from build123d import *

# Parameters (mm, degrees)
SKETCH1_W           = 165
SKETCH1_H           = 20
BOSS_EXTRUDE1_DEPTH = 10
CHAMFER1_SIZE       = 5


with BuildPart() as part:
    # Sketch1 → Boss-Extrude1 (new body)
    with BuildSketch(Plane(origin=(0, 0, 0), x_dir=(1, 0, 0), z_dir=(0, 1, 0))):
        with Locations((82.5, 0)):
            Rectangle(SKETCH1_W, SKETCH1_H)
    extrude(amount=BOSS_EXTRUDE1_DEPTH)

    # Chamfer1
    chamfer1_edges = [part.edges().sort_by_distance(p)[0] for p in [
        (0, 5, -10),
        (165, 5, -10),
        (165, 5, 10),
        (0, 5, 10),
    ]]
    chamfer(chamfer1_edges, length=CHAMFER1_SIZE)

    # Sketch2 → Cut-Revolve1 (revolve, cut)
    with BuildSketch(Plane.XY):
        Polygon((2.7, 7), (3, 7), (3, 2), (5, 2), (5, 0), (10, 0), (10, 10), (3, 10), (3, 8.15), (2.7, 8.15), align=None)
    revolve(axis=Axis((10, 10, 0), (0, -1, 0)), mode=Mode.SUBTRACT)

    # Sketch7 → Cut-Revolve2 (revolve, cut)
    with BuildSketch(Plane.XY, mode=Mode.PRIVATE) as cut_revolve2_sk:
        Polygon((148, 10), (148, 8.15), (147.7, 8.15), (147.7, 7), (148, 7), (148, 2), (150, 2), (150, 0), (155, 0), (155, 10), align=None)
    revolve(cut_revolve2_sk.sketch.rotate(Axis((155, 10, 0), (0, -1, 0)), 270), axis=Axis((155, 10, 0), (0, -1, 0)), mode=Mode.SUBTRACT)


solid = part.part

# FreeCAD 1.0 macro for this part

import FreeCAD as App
import Part
import Sketcher
from FreeCAD import Vector
Q = App.Units.Quantity


def edges_at(feature, points):
    """Names of the edges that pass closest to the given points."""
    edges = feature.Shape.Edges
    near = lambda p: min(range(len(edges)), key=lambda i: edges[i].distToShape(Part.Vertex(*p))[0])
    return sorted({f"Edge{near(p) + 1}" for p in points})


def add_polygon(sketch, points):
    """Adds a closed chain of lines whose ends are joined by coincident constraints."""
    first, n = sketch.GeometryCount, len(points)
    for a, b in zip(points, points[1:] + points[:1]):
        sketch.addGeometry(Part.LineSegment(App.Vector(*a, 0), App.Vector(*b, 0)), False)
    for i in range(n):
        sketch.addConstraint(Sketcher.Constraint("Coincident", first + i, 2, first + (i + 1) % n, 1))

doc = App.newDocument("Part")
body = doc.addObject("PartDesign::Body", "Body")

# Sketch on XZ plane
sketch1 = body.newObject("Sketcher::SketchObject", "Sketch")
sketch1.AttachmentSupport = (doc.getObject("XZ_Plane"), [""])
sketch1.MapMode = "FlatFace"
add_polygon(sketch1, [(0, -10), (0, 10), (165, 10), (165, -10)])  # lines 0-3
sketch1.addConstraint(Sketcher.Constraint("Vertical", 0))
sketch1.addConstraint(Sketcher.Constraint("Horizontal", 1))
sketch1.addConstraint(Sketcher.Constraint("Vertical", 2))
sketch1.addConstraint(Sketcher.Constraint("Horizontal", 3))
sketch1.addConstraint(Sketcher.Constraint("Symmetric", 0, 2, 3, 2, -1, 1))
sketch1.addConstraint(Sketcher.Constraint("DistanceX", 1, 1, 1, 2, Q("165 mm")))
sketch1.addConstraint(Sketcher.Constraint("DistanceY", 0, 1, 0, 2, Q("20 mm")))
pad1 = body.newObject("PartDesign::Pad", "Pad")
pad1.Profile = sketch1
pad1.Length = 10
pad1.Reversed = True
doc.recompute()

chamfer = body.newObject("PartDesign::Chamfer", "Chamfer")
chamfer.Base = (pad1, edges_at(pad1, [
    (0, 5, -10),
    (165, 5, -10),
    (165, 5, 10),
    (0, 5, 10),
]))
chamfer.Size = 5

# Sketch on XY plane
sketch2 = body.newObject("Sketcher::SketchObject", "Sketch001")
sketch2.AttachmentSupport = (doc.getObject("XY_Plane"), [""])
sketch2.MapMode = "FlatFace"
add_polygon(sketch2, [(2.7, 7), (3, 7), (3, 2), (5, 2), (5, 0), (10, 0), (10, 10), (3, 10), (3, 8.15), (2.7, 8.15)])  # lines 0-9
sketch2.addGeometry(Part.LineSegment(Vector(10, 10, 0), Vector(10, 0, 0)), True)  # axis
sketch2.addConstraint(Sketcher.Constraint("Horizontal", 0))
sketch2.addConstraint(Sketcher.Constraint("Vertical", 1))
sketch2.addConstraint(Sketcher.Constraint("Horizontal", 2))
sketch2.addConstraint(Sketcher.Constraint("Vertical", 3))
sketch2.addConstraint(Sketcher.Constraint("Horizontal", 4))
sketch2.addConstraint(Sketcher.Constraint("Vertical", 5))
sketch2.addConstraint(Sketcher.Constraint("Horizontal", 6))
sketch2.addConstraint(Sketcher.Constraint("Vertical", 7))
sketch2.addConstraint(Sketcher.Constraint("Horizontal", 8))
sketch2.addConstraint(Sketcher.Constraint("Vertical", 9))
sketch2.addConstraint(Sketcher.Constraint("Vertical", 10))
sketch2.addConstraint(Sketcher.Constraint("Coincident", 10, 1, 5, 2))
sketch2.addConstraint(Sketcher.Constraint("PointOnObject", 3, 2, -1))
sketch2.addConstraint(Sketcher.Constraint("PointOnObject", 10, 2, -1))
sketch2.addConstraint(Sketcher.Constraint("Vertical", 1, 2, 6, 2))
sketch2.addConstraint(Sketcher.Constraint("Equal", 4, 1))
sketch2.addConstraint(Sketcher.Constraint("Equal", 2, 3))
sketch2.addConstraint(Sketcher.Constraint("DistanceX", 2, 1, 2, 2, Q("2 mm")))
sketch2.addConstraint(Sketcher.Constraint("DistanceX", 4, 1, 4, 2, Q("5 mm")))
sketch2.addConstraint(Sketcher.Constraint("DistanceY", 5, 1, 5, 2, Q("10 mm")))
sketch2.addConstraint(Sketcher.Constraint("DistanceX", 0, 1, 0, 2, Q("0.3 mm")))
sketch2.addConstraint(Sketcher.Constraint("DistanceX", -1, 1, 0, 2, Q("3 mm")))
sketch2.addConstraint(Sketcher.Constraint("DistanceY", 7, 2, 7, 1, Q("1.85 mm")))
groove = body.newObject("PartDesign::Groove", "Groove")
groove.Profile = sketch2
groove.ReferenceAxis = (sketch2, ["Axis0"])
groove.Angle = 360

# Sketch on XY plane
sketch3 = body.newObject("Sketcher::SketchObject", "Sketch002")
sketch3.AttachmentSupport = (doc.getObject("XY_Plane"), [""])
sketch3.MapMode = "FlatFace"
add_polygon(sketch3, [(148, 10), (148, 8.15), (147.7, 8.15), (147.7, 7), (148, 7), (148, 2), (150, 2), (150, 0), (155, 0), (155, 10)])  # lines 0-9
sketch3.addGeometry(Part.LineSegment(Vector(155, 10, 0), Vector(155, 0, 0)), True)  # axis
sketch3.addConstraint(Sketcher.Constraint("Vertical", 0))
sketch3.addConstraint(Sketcher.Constraint("Horizontal", 1))
sketch3.addConstraint(Sketcher.Constraint("Vertical", 2))
sketch3.addConstraint(Sketcher.Constraint("Horizontal", 3))
sketch3.addConstraint(Sketcher.Constraint("Vertical", 4))
sketch3.addConstraint(Sketcher.Constraint("Horizontal", 5))
sketch3.addConstraint(Sketcher.Constraint("Vertical", 6))
sketch3.addConstraint(Sketcher.Constraint("Horizontal", 7))
sketch3.addConstraint(Sketcher.Constraint("Vertical", 8))
sketch3.addConstraint(Sketcher.Constraint("Horizontal", 9))
sketch3.addConstraint(Sketcher.Constraint("Vertical", 10))
sketch3.addConstraint(Sketcher.Constraint("Coincident", 10, 1, 8, 2))
sketch3.addConstraint(Sketcher.Constraint("PointOnObject", 6, 2, -1))
sketch3.addConstraint(Sketcher.Constraint("PointOnObject", 10, 2, -1))
sketch3.addConstraint(Sketcher.Constraint("Vertical", 0, 2, 3, 2))
sketch3.addConstraint(Sketcher.Constraint("Equal", 7, 4))
sketch3.addConstraint(Sketcher.Constraint("Equal", 5, 6))
sketch3.addConstraint(Sketcher.Constraint("DistanceX", 5, 1, 5, 2, Q("2 mm")))
sketch3.addConstraint(Sketcher.Constraint("DistanceX", 7, 1, 7, 2, Q("5 mm")))
sketch3.addConstraint(Sketcher.Constraint("DistanceY", 8, 1, 8, 2, Q("10 mm")))
sketch3.addConstraint(Sketcher.Constraint("DistanceX", 1, 2, 1, 1, Q("0.3 mm")))
sketch3.addConstraint(Sketcher.Constraint("DistanceX", -1, 1, 0, 2, Q("148 mm")))
sketch3.addConstraint(Sketcher.Constraint("DistanceY", 0, 2, 0, 1, Q("1.85 mm")))
groove2 = body.newObject("PartDesign::Groove", "Groove001")
groove2.Profile = sketch3
groove2.ReferenceAxis = (sketch3, ["Axis0"])
groove2.Angle = 360

doc.recompute()
